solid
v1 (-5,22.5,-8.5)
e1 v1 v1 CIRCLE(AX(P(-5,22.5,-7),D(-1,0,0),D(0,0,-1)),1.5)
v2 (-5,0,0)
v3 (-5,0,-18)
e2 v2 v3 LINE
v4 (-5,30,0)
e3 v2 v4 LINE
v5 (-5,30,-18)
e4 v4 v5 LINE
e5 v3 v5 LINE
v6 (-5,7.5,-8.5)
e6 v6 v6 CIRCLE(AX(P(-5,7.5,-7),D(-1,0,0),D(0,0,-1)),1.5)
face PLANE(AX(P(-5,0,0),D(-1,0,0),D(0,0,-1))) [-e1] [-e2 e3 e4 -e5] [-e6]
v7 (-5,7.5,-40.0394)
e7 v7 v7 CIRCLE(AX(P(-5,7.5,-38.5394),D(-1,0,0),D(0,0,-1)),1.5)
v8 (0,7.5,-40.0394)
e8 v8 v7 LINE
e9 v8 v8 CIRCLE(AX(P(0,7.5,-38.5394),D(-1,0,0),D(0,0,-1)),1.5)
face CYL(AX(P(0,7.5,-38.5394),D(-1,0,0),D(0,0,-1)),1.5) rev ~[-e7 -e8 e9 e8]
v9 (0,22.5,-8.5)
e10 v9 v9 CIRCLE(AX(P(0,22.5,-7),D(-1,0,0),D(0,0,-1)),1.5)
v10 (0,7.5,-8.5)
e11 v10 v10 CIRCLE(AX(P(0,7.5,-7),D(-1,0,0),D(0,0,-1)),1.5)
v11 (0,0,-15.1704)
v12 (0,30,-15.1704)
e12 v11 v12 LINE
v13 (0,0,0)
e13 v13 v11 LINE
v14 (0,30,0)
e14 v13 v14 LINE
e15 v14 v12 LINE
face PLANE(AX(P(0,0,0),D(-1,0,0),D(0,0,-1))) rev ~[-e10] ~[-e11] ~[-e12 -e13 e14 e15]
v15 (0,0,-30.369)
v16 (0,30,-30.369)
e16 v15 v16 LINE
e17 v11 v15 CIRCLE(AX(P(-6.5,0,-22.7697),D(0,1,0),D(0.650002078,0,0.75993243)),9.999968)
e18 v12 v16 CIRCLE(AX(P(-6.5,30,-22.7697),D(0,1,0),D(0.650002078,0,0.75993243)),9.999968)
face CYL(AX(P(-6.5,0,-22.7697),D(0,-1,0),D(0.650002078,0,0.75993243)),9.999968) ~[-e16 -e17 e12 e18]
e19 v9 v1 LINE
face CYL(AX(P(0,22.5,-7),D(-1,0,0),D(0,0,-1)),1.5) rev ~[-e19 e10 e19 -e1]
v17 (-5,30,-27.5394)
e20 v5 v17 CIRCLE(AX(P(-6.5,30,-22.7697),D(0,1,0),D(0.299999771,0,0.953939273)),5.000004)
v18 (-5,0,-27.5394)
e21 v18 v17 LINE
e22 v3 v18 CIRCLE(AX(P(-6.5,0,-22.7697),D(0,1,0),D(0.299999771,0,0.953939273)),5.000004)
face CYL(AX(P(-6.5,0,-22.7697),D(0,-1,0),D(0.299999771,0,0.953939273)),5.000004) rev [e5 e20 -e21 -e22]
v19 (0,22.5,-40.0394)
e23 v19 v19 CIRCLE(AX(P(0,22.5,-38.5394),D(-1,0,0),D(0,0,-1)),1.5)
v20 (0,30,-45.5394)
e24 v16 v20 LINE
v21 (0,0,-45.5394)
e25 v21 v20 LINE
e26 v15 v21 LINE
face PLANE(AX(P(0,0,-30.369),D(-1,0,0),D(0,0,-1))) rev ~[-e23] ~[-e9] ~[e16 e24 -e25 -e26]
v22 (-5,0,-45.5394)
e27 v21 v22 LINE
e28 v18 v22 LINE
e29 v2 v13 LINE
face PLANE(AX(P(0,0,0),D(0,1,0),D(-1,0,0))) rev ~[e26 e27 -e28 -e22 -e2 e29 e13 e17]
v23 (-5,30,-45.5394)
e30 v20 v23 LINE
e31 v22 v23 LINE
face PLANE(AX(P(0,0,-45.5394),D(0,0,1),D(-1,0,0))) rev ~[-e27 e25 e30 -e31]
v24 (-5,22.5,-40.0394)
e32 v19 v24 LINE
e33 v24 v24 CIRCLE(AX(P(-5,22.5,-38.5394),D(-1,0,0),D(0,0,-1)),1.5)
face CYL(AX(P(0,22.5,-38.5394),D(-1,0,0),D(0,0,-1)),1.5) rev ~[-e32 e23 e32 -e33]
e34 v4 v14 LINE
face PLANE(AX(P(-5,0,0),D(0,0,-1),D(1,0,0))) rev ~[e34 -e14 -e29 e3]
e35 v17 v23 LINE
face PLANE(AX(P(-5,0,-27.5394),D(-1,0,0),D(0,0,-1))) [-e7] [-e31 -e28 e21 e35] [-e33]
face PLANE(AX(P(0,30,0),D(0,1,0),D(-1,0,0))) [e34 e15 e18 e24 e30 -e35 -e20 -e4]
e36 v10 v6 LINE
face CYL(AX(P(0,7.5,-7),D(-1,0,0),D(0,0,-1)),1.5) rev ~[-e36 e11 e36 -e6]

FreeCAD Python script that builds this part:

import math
import FreeCAD as App
import Part
import Sketcher
from FreeCAD import Vector

doc = App.newDocument("Part")
params = doc.addObject("Spreadsheet::Sheet", "Params")
for row, (alias, value) in enumerate([
    ("sketch1_radius", "5 mm"),
    ("sketch1_radius2", "10 mm"),
    ("sketch1_width", "5 mm"),
    ("sketch1_height", "18 mm"),
    ("sketch1_width2", "1.5 mm"),
    ("pad1_length", "30 mm"),
    ("sketch2_diameter", "3 mm"),
    ("hole_diameter", "3 mm"),
], start=1):
    params.set(f"A{row}", alias)
    params.set(f"B{row}", "=" + value)
    params.setAlias(f"B{row}", alias)

body = doc.addObject("PartDesign::Body", "Body")

sketch1 = body.newObject("Sketcher::SketchObject", "Sketch")
sketch1.AttachmentSupport = (doc.getObject("XZ_Plane"), [""])
sketch1.MapMode = "FlatFace"
sketch1.addGeometry([
    Part.ArcOfCircle(Part.Circle(Vector(-6, -23, 0), Vector(0, 0, 1), 5), math.radians(-73), math.radians(73)),
    Part.LineSegment(Vector(-5, -18, 0), Vector(-5, 0, 0)),
    Part.LineSegment(Vector(-5, 0, 0), Vector(0, 0, 0)),
    Part.LineSegment(Vector(0, 0, 0), Vector(0, -15, 0)),
    Part.ArcOfCircle(Part.Circle(Vector(-6, -23, 0), Vector(0, 0, 1), 10), math.radians(-49), math.radians(49)),
    Part.LineSegment(Vector(0, -30, 0), Vector(0, -46, 0)),
    Part.LineSegment(Vector(0, -46, 0), Vector(-5, -46, 0)),
    Part.LineSegment(Vector(-5, -46, 0), Vector(-5, -28, 0)),
], False)
sketch1.addConstraint([
    Sketcher.Constraint("Coincident", 0, 2, 1, 1),
    Sketcher.Constraint("Coincident", 1, 2, 2, 1),
    Sketcher.Constraint("Coincident", 2, 2, 3, 1),
    Sketcher.Constraint("Coincident", 3, 2, 4, 2),
    Sketcher.Constraint("Coincident", 4, 1, 5, 1),
    Sketcher.Constraint("Coincident", 5, 2, 6, 1),
    Sketcher.Constraint("Coincident", 6, 2, 7, 1),
    Sketcher.Constraint("Coincident", 7, 2, 0, 1),
    Sketcher.Constraint("Vertical", 1),
    Sketcher.Constraint("Horizontal", 2),
    Sketcher.Constraint("Vertical", 3),
    Sketcher.Constraint("Vertical", 5),
    Sketcher.Constraint("Horizontal", 6),
    Sketcher.Constraint("Vertical", 7),
    Sketcher.Constraint("Coincident", 2, 2, -1, 1),
    Sketcher.Constraint("Coincident", 4, 3, 0, 3),
    Sketcher.Constraint("PointOnObject", 4, 1, -2),
    Sketcher.Constraint("Vertical", 1, 2, 6, 2),
    Sketcher.Constraint("Equal", 3, 5),
    Sketcher.Constraint("Radius", 0, 5.0),
    Sketcher.Constraint("Radius", 4, 10.0),
    Sketcher.Constraint("DistanceX", 2, 1, 2, 2, 5.0),
    Sketcher.Constraint("DistanceY", 1, 1, 1, 2, 18.0),
    Sketcher.Constraint("DistanceX", 0, 3, 0, 2, 1.5),
])
sketch1.setExpression("Constraints[19]", "Params.sketch1_radius")
sketch1.setExpression("Constraints[20]", "Params.sketch1_radius2")
sketch1.setExpression("Constraints[21]", "Params.sketch1_width")
sketch1.setExpression("Constraints[22]", "Params.sketch1_height")
sketch1.setExpression("Constraints[23]", "Params.sketch1_width2")
pad1 = body.newObject("PartDesign::Pad", "Pad")
pad1.Profile = sketch1
pad1.setExpression("Length", "Params.pad1_length")
pad1.Reversed = True

sketch2 = body.newObject("Sketcher::SketchObject", "Sketch001")
sketch2.AttachmentSupport = (doc.getObject("YZ_Plane"), [""])
sketch2.MapMode = "FlatFace"
sketch2.addGeometry([
    Part.Circle(Vector(22.5, -38.5, 0), Vector(0, 0, 1), 1.5),
    Part.Circle(Vector(7.5, -38.5, 0), Vector(0, 0, 1), 1.5),
    Part.Circle(Vector(22.5, -7, 0), Vector(0, 0, 1), 1.5),
    Part.Circle(Vector(7.5, -7, 0), Vector(0, 0, 1), 1.5),
], False)
sketch2.addConstraint([
    Sketcher.Constraint("Equal", 0, 1),
    Sketcher.Constraint("Equal", 1, 2),
    Sketcher.Constraint("Equal", 2, 3),
    Sketcher.Constraint("Horizontal", 0, 3, 1, 3),
    Sketcher.Constraint("Horizontal", 2, 3, 3, 3),
    Sketcher.Constraint("Vertical", 0, 3, 2, 3),
    Sketcher.Constraint("Vertical", 1, 3, 3, 3),
    Sketcher.Constraint("Diameter", 0, 3.0),
    Sketcher.Constraint("DistanceY", 2, 3, -1, 1, 7.0),
    Sketcher.Constraint("DistanceX", 1, 3, 0, 3, 15.0),
    Sketcher.Constraint("DistanceX", -1, 1, 0, 3, 22.5),
    Sketcher.Constraint("DistanceY", 0, 3, -1, 1, 38.5394),
])
sketch2.setExpression("Constraints[7]", "Params.sketch2_diameter")
doc.recompute()
hole = body.newObject("PartDesign::Hole", "Hole")
hole.Profile = sketch2
hole.ThreadType = "None"
hole.setExpression("Diameter", "Params.hole_diameter")
hole.DepthType = "ThroughAll"

doc.recompute()
